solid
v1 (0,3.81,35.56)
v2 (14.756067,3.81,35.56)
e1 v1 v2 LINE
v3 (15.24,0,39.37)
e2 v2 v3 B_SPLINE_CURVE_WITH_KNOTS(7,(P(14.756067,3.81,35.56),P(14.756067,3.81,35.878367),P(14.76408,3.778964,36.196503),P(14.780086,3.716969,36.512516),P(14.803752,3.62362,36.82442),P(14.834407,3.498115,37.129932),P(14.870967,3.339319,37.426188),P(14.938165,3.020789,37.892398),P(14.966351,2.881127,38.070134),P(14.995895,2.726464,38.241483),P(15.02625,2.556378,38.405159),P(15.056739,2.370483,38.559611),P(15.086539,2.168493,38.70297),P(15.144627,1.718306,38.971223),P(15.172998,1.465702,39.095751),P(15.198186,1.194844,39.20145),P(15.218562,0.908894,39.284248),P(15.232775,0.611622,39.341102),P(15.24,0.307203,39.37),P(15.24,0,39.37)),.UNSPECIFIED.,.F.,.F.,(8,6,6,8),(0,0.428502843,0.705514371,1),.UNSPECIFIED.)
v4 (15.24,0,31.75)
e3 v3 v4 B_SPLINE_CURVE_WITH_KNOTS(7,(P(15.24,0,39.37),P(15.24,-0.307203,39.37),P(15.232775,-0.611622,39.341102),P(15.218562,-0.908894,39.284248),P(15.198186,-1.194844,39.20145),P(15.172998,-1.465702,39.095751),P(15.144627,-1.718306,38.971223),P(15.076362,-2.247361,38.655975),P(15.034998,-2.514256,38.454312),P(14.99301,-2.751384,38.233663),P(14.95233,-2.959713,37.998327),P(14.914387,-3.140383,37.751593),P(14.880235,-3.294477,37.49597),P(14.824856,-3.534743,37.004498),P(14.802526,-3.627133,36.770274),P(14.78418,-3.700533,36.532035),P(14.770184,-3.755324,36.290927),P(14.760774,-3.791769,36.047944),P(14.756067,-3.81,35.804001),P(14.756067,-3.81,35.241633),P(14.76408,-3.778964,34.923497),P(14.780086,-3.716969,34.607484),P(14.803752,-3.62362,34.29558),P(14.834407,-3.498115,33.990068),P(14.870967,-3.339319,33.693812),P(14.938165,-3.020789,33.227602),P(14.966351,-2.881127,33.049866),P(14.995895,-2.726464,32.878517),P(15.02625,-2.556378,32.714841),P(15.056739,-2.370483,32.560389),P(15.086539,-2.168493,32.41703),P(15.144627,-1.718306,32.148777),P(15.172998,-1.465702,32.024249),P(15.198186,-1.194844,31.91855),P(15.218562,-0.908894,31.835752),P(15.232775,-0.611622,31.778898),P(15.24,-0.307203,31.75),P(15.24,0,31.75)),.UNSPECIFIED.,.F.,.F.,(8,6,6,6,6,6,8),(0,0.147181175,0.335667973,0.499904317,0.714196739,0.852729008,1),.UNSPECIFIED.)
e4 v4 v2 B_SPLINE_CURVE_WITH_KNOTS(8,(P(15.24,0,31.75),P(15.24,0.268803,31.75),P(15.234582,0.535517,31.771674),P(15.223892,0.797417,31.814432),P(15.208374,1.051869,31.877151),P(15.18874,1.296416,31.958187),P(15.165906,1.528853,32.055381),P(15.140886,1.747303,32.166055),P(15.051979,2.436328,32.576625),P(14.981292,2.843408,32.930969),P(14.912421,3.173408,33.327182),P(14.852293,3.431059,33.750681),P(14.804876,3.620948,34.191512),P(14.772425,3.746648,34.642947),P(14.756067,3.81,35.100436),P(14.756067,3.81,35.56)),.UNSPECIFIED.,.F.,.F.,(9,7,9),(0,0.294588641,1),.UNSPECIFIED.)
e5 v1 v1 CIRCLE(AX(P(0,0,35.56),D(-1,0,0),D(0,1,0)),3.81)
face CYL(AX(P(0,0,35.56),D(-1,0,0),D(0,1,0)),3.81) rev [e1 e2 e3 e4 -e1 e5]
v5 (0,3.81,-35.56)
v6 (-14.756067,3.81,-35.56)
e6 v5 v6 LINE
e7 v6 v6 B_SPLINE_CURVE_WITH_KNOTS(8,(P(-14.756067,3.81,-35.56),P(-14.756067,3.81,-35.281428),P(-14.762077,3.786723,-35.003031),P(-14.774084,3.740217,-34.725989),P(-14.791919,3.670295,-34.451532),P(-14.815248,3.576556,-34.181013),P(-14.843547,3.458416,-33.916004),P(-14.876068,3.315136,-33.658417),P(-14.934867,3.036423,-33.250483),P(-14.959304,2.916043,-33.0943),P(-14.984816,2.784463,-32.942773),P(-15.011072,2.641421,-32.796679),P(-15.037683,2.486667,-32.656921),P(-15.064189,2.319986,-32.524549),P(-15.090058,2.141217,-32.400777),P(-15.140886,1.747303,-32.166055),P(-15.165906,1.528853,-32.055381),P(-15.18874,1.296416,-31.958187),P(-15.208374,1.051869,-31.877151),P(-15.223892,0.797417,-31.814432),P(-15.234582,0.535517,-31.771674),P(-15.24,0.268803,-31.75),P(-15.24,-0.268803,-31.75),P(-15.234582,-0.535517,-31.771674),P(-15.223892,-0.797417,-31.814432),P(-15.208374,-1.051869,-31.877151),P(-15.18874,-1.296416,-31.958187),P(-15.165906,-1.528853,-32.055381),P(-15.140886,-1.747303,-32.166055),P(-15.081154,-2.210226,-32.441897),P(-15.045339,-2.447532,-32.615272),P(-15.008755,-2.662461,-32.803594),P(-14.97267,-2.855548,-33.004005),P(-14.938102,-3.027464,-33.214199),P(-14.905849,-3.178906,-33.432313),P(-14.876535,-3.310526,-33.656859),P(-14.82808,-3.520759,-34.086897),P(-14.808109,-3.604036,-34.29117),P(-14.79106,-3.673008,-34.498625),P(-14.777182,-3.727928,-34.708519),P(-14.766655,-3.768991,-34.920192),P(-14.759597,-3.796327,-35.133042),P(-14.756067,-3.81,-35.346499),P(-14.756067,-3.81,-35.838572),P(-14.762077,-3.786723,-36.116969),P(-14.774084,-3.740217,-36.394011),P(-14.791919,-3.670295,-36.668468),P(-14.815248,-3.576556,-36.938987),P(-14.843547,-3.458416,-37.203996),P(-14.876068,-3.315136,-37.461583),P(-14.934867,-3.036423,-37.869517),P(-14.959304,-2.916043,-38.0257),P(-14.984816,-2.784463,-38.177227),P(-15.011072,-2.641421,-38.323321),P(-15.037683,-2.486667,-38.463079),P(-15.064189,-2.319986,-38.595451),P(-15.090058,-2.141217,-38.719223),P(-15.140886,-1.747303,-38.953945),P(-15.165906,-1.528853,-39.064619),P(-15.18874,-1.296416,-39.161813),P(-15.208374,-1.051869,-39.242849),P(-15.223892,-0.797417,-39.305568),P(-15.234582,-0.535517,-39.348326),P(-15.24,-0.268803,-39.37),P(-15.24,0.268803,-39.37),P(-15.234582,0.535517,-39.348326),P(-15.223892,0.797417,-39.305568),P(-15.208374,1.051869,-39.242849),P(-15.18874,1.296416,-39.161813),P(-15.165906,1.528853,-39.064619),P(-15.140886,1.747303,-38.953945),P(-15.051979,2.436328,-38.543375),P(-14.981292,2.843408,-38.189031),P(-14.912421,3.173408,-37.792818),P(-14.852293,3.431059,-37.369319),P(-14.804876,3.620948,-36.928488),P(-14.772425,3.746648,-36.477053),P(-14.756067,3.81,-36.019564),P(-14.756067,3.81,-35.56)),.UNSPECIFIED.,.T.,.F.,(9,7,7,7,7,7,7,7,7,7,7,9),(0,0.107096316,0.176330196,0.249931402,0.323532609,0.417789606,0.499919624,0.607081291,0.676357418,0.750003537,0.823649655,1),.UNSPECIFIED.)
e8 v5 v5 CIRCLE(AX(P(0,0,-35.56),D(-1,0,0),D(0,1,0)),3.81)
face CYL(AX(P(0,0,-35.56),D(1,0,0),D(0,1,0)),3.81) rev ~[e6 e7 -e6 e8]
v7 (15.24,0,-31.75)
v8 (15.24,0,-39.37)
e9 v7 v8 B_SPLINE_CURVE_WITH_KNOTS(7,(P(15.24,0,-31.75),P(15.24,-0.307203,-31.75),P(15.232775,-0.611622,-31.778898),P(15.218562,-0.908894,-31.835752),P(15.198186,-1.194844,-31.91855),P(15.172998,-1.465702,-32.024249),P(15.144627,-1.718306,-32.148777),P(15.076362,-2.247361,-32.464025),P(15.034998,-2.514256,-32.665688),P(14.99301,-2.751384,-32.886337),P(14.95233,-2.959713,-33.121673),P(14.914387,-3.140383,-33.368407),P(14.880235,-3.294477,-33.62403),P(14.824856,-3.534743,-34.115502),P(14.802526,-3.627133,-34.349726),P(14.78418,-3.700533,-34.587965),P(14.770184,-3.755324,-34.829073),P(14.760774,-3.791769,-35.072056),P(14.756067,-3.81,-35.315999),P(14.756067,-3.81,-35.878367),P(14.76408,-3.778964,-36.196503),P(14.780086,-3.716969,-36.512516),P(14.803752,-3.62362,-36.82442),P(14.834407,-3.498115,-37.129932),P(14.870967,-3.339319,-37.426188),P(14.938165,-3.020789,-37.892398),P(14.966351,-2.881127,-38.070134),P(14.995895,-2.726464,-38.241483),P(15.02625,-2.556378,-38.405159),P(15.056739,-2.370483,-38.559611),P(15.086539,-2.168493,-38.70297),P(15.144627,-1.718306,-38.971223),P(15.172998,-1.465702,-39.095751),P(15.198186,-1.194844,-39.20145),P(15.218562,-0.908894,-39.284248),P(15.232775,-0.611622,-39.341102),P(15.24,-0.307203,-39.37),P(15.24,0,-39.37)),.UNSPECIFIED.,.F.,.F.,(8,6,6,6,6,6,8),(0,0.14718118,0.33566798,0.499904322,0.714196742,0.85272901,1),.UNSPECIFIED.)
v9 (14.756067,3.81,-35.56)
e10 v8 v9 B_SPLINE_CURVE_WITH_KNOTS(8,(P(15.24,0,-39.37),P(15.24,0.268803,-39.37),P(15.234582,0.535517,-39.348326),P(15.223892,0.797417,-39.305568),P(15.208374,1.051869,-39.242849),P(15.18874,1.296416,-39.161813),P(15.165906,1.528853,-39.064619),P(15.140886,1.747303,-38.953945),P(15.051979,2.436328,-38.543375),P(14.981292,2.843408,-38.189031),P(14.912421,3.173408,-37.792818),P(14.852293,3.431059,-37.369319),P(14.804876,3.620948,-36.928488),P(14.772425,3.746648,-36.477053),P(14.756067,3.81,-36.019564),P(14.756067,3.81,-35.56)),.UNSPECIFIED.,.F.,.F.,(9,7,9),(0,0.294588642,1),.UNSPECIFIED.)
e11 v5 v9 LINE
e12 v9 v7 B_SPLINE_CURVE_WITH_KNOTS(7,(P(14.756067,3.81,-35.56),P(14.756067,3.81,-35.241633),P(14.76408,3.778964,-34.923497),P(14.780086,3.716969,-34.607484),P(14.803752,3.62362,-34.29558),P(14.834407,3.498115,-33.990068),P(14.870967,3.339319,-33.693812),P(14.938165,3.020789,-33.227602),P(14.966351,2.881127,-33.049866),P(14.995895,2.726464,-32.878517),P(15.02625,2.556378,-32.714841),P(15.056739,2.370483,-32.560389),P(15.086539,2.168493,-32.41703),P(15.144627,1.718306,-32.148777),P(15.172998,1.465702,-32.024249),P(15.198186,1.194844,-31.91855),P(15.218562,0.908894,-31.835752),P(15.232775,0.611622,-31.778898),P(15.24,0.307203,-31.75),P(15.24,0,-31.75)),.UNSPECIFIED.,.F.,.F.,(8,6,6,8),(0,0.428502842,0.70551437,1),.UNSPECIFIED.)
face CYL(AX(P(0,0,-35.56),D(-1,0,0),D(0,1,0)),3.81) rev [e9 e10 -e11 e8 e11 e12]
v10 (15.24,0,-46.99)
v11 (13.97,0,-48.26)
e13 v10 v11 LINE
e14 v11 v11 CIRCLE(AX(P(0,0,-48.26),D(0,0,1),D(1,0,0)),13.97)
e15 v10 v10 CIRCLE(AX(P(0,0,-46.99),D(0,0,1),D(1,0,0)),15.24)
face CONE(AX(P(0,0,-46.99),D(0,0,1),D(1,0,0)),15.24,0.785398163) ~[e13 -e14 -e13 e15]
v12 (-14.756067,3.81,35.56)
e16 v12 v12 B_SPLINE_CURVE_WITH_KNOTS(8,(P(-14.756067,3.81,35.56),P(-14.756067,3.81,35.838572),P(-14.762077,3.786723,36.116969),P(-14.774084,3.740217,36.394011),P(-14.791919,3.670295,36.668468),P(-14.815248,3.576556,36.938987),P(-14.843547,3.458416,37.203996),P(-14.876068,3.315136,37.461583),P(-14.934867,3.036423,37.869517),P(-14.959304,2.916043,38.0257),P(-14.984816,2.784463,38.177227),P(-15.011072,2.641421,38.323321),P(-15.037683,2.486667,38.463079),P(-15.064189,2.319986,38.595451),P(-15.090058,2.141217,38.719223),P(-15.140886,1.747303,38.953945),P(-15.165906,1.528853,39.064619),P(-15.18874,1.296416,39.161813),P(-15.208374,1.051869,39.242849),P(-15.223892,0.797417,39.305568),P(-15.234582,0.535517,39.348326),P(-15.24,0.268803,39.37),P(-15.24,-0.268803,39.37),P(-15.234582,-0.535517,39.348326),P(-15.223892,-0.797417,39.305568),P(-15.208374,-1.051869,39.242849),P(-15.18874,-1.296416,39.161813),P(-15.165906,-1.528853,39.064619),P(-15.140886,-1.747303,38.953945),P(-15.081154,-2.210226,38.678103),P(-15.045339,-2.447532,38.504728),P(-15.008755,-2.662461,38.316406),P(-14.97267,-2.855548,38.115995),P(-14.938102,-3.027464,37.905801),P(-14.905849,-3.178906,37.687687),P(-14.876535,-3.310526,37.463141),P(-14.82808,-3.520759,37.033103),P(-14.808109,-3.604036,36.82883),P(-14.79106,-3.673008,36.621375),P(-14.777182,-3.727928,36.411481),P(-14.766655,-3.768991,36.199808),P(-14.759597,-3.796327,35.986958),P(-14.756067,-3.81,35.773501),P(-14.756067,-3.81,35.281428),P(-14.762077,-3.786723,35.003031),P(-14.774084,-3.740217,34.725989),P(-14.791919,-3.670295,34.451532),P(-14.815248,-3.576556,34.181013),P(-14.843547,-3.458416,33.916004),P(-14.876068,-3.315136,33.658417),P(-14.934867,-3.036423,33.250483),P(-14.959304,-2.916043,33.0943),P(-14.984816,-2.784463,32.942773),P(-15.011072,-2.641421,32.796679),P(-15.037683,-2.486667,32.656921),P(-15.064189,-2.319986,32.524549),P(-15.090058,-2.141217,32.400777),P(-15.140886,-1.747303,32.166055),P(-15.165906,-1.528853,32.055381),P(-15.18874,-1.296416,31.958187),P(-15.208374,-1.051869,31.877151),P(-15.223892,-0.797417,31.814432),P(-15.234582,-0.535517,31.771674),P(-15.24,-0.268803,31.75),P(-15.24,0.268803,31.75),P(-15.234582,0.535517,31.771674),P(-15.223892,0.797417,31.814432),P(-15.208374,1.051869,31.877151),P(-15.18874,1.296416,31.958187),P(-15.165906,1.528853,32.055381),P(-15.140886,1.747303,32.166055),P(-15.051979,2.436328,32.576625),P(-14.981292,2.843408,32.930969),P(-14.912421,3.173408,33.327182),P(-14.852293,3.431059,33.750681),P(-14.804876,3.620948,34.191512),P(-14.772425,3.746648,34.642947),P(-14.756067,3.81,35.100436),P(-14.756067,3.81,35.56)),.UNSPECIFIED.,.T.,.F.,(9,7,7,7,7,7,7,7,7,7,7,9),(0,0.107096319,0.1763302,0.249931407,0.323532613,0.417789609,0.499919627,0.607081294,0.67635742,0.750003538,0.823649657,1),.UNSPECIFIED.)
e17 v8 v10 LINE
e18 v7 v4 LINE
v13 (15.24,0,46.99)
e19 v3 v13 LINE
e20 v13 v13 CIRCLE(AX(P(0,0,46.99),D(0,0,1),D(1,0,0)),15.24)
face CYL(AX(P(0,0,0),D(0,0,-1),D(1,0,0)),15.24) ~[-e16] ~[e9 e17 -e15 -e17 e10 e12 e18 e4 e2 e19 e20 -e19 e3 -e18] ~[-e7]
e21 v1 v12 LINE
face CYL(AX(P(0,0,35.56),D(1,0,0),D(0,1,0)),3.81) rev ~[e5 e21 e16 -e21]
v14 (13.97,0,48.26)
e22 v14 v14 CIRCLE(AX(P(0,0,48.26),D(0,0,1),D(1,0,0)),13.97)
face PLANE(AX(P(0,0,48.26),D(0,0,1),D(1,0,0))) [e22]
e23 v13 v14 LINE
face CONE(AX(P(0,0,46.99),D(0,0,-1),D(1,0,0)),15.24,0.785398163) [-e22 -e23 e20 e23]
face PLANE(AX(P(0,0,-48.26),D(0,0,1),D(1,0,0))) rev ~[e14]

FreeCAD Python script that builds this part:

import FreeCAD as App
import Part
import Sketcher
Q = App.Units.Quantity


def edges_at(feature, points):
    """Names of the edges that pass closest to the given points."""
    edges = feature.Shape.Edges
    near = lambda p: min(range(len(edges)), key=lambda i: edges[i].distToShape(Part.Vertex(*p))[0])
    return sorted({f"Edge{near(p) + 1}" for p in points})

doc = App.newDocument("Part")
body = doc.addObject("PartDesign::Body", "Body")

sketch1 = body.newObject("Sketcher::SketchObject", "Sketch")
sketch1.AttachmentSupport = (doc.getObject("XY_Plane"), [""])
sketch1.MapMode = "FlatFace"
sketch1.addGeometry(Part.Circle(App.Vector(0, 0, 0), App.Vector(0, 0, 1), 15), False)
sketch1.addConstraint([
    Sketcher.Constraint("Coincident", 0, 3, -1, 1),
    Sketcher.Constraint("Diameter", 0, Q("1.2 in")),
])
pad1 = body.newObject("PartDesign::Pad", "Pad")
pad1.Profile = sketch1
pad1.Length = Q("3.8 in")
pad1.Midplane = True

sketch2 = body.newObject("Sketcher::SketchObject", "Sketch001")
sketch2.AttachmentSupport = (doc.getObject("YZ_Plane"), [""])
sketch2.MapMode = "FlatFace"
sketch2.addGeometry([
    Part.Circle(App.Vector(0, -35.6, 0), App.Vector(0, 0, 1), 3.8),
    Part.Circle(App.Vector(0, 35.6, 0), App.Vector(0, 0, 1), 3.8),
], False)
sketch2.addConstraint([
    Sketcher.Constraint("Equal", 0, 1),
    Sketcher.Constraint("Symmetric", 0, 3, 1, 3, -1, 1),
    Sketcher.Constraint("PointOnObject", 0, 3, -2),
    Sketcher.Constraint("Diameter", 0, Q("0.3 in")),
    Sketcher.Constraint("DistanceY", 0, 3, -1, 1, Q("1.4 in")),
])
pocket1 = body.newObject("PartDesign::Pocket", "Pocket")
pocket1.Profile = sketch2
pocket1.Type = "ThroughAll"
pocket1.Midplane = True
doc.recompute()

chamfer = body.newObject("PartDesign::Chamfer", "Chamfer")
chamfer.Base = (pocket1, edges_at(pocket1, [(-15.24, 0, 48.26), (-15.24, 0, -48.26)]))
chamfer.Size = Q("0.05 in")

doc.recompute()
